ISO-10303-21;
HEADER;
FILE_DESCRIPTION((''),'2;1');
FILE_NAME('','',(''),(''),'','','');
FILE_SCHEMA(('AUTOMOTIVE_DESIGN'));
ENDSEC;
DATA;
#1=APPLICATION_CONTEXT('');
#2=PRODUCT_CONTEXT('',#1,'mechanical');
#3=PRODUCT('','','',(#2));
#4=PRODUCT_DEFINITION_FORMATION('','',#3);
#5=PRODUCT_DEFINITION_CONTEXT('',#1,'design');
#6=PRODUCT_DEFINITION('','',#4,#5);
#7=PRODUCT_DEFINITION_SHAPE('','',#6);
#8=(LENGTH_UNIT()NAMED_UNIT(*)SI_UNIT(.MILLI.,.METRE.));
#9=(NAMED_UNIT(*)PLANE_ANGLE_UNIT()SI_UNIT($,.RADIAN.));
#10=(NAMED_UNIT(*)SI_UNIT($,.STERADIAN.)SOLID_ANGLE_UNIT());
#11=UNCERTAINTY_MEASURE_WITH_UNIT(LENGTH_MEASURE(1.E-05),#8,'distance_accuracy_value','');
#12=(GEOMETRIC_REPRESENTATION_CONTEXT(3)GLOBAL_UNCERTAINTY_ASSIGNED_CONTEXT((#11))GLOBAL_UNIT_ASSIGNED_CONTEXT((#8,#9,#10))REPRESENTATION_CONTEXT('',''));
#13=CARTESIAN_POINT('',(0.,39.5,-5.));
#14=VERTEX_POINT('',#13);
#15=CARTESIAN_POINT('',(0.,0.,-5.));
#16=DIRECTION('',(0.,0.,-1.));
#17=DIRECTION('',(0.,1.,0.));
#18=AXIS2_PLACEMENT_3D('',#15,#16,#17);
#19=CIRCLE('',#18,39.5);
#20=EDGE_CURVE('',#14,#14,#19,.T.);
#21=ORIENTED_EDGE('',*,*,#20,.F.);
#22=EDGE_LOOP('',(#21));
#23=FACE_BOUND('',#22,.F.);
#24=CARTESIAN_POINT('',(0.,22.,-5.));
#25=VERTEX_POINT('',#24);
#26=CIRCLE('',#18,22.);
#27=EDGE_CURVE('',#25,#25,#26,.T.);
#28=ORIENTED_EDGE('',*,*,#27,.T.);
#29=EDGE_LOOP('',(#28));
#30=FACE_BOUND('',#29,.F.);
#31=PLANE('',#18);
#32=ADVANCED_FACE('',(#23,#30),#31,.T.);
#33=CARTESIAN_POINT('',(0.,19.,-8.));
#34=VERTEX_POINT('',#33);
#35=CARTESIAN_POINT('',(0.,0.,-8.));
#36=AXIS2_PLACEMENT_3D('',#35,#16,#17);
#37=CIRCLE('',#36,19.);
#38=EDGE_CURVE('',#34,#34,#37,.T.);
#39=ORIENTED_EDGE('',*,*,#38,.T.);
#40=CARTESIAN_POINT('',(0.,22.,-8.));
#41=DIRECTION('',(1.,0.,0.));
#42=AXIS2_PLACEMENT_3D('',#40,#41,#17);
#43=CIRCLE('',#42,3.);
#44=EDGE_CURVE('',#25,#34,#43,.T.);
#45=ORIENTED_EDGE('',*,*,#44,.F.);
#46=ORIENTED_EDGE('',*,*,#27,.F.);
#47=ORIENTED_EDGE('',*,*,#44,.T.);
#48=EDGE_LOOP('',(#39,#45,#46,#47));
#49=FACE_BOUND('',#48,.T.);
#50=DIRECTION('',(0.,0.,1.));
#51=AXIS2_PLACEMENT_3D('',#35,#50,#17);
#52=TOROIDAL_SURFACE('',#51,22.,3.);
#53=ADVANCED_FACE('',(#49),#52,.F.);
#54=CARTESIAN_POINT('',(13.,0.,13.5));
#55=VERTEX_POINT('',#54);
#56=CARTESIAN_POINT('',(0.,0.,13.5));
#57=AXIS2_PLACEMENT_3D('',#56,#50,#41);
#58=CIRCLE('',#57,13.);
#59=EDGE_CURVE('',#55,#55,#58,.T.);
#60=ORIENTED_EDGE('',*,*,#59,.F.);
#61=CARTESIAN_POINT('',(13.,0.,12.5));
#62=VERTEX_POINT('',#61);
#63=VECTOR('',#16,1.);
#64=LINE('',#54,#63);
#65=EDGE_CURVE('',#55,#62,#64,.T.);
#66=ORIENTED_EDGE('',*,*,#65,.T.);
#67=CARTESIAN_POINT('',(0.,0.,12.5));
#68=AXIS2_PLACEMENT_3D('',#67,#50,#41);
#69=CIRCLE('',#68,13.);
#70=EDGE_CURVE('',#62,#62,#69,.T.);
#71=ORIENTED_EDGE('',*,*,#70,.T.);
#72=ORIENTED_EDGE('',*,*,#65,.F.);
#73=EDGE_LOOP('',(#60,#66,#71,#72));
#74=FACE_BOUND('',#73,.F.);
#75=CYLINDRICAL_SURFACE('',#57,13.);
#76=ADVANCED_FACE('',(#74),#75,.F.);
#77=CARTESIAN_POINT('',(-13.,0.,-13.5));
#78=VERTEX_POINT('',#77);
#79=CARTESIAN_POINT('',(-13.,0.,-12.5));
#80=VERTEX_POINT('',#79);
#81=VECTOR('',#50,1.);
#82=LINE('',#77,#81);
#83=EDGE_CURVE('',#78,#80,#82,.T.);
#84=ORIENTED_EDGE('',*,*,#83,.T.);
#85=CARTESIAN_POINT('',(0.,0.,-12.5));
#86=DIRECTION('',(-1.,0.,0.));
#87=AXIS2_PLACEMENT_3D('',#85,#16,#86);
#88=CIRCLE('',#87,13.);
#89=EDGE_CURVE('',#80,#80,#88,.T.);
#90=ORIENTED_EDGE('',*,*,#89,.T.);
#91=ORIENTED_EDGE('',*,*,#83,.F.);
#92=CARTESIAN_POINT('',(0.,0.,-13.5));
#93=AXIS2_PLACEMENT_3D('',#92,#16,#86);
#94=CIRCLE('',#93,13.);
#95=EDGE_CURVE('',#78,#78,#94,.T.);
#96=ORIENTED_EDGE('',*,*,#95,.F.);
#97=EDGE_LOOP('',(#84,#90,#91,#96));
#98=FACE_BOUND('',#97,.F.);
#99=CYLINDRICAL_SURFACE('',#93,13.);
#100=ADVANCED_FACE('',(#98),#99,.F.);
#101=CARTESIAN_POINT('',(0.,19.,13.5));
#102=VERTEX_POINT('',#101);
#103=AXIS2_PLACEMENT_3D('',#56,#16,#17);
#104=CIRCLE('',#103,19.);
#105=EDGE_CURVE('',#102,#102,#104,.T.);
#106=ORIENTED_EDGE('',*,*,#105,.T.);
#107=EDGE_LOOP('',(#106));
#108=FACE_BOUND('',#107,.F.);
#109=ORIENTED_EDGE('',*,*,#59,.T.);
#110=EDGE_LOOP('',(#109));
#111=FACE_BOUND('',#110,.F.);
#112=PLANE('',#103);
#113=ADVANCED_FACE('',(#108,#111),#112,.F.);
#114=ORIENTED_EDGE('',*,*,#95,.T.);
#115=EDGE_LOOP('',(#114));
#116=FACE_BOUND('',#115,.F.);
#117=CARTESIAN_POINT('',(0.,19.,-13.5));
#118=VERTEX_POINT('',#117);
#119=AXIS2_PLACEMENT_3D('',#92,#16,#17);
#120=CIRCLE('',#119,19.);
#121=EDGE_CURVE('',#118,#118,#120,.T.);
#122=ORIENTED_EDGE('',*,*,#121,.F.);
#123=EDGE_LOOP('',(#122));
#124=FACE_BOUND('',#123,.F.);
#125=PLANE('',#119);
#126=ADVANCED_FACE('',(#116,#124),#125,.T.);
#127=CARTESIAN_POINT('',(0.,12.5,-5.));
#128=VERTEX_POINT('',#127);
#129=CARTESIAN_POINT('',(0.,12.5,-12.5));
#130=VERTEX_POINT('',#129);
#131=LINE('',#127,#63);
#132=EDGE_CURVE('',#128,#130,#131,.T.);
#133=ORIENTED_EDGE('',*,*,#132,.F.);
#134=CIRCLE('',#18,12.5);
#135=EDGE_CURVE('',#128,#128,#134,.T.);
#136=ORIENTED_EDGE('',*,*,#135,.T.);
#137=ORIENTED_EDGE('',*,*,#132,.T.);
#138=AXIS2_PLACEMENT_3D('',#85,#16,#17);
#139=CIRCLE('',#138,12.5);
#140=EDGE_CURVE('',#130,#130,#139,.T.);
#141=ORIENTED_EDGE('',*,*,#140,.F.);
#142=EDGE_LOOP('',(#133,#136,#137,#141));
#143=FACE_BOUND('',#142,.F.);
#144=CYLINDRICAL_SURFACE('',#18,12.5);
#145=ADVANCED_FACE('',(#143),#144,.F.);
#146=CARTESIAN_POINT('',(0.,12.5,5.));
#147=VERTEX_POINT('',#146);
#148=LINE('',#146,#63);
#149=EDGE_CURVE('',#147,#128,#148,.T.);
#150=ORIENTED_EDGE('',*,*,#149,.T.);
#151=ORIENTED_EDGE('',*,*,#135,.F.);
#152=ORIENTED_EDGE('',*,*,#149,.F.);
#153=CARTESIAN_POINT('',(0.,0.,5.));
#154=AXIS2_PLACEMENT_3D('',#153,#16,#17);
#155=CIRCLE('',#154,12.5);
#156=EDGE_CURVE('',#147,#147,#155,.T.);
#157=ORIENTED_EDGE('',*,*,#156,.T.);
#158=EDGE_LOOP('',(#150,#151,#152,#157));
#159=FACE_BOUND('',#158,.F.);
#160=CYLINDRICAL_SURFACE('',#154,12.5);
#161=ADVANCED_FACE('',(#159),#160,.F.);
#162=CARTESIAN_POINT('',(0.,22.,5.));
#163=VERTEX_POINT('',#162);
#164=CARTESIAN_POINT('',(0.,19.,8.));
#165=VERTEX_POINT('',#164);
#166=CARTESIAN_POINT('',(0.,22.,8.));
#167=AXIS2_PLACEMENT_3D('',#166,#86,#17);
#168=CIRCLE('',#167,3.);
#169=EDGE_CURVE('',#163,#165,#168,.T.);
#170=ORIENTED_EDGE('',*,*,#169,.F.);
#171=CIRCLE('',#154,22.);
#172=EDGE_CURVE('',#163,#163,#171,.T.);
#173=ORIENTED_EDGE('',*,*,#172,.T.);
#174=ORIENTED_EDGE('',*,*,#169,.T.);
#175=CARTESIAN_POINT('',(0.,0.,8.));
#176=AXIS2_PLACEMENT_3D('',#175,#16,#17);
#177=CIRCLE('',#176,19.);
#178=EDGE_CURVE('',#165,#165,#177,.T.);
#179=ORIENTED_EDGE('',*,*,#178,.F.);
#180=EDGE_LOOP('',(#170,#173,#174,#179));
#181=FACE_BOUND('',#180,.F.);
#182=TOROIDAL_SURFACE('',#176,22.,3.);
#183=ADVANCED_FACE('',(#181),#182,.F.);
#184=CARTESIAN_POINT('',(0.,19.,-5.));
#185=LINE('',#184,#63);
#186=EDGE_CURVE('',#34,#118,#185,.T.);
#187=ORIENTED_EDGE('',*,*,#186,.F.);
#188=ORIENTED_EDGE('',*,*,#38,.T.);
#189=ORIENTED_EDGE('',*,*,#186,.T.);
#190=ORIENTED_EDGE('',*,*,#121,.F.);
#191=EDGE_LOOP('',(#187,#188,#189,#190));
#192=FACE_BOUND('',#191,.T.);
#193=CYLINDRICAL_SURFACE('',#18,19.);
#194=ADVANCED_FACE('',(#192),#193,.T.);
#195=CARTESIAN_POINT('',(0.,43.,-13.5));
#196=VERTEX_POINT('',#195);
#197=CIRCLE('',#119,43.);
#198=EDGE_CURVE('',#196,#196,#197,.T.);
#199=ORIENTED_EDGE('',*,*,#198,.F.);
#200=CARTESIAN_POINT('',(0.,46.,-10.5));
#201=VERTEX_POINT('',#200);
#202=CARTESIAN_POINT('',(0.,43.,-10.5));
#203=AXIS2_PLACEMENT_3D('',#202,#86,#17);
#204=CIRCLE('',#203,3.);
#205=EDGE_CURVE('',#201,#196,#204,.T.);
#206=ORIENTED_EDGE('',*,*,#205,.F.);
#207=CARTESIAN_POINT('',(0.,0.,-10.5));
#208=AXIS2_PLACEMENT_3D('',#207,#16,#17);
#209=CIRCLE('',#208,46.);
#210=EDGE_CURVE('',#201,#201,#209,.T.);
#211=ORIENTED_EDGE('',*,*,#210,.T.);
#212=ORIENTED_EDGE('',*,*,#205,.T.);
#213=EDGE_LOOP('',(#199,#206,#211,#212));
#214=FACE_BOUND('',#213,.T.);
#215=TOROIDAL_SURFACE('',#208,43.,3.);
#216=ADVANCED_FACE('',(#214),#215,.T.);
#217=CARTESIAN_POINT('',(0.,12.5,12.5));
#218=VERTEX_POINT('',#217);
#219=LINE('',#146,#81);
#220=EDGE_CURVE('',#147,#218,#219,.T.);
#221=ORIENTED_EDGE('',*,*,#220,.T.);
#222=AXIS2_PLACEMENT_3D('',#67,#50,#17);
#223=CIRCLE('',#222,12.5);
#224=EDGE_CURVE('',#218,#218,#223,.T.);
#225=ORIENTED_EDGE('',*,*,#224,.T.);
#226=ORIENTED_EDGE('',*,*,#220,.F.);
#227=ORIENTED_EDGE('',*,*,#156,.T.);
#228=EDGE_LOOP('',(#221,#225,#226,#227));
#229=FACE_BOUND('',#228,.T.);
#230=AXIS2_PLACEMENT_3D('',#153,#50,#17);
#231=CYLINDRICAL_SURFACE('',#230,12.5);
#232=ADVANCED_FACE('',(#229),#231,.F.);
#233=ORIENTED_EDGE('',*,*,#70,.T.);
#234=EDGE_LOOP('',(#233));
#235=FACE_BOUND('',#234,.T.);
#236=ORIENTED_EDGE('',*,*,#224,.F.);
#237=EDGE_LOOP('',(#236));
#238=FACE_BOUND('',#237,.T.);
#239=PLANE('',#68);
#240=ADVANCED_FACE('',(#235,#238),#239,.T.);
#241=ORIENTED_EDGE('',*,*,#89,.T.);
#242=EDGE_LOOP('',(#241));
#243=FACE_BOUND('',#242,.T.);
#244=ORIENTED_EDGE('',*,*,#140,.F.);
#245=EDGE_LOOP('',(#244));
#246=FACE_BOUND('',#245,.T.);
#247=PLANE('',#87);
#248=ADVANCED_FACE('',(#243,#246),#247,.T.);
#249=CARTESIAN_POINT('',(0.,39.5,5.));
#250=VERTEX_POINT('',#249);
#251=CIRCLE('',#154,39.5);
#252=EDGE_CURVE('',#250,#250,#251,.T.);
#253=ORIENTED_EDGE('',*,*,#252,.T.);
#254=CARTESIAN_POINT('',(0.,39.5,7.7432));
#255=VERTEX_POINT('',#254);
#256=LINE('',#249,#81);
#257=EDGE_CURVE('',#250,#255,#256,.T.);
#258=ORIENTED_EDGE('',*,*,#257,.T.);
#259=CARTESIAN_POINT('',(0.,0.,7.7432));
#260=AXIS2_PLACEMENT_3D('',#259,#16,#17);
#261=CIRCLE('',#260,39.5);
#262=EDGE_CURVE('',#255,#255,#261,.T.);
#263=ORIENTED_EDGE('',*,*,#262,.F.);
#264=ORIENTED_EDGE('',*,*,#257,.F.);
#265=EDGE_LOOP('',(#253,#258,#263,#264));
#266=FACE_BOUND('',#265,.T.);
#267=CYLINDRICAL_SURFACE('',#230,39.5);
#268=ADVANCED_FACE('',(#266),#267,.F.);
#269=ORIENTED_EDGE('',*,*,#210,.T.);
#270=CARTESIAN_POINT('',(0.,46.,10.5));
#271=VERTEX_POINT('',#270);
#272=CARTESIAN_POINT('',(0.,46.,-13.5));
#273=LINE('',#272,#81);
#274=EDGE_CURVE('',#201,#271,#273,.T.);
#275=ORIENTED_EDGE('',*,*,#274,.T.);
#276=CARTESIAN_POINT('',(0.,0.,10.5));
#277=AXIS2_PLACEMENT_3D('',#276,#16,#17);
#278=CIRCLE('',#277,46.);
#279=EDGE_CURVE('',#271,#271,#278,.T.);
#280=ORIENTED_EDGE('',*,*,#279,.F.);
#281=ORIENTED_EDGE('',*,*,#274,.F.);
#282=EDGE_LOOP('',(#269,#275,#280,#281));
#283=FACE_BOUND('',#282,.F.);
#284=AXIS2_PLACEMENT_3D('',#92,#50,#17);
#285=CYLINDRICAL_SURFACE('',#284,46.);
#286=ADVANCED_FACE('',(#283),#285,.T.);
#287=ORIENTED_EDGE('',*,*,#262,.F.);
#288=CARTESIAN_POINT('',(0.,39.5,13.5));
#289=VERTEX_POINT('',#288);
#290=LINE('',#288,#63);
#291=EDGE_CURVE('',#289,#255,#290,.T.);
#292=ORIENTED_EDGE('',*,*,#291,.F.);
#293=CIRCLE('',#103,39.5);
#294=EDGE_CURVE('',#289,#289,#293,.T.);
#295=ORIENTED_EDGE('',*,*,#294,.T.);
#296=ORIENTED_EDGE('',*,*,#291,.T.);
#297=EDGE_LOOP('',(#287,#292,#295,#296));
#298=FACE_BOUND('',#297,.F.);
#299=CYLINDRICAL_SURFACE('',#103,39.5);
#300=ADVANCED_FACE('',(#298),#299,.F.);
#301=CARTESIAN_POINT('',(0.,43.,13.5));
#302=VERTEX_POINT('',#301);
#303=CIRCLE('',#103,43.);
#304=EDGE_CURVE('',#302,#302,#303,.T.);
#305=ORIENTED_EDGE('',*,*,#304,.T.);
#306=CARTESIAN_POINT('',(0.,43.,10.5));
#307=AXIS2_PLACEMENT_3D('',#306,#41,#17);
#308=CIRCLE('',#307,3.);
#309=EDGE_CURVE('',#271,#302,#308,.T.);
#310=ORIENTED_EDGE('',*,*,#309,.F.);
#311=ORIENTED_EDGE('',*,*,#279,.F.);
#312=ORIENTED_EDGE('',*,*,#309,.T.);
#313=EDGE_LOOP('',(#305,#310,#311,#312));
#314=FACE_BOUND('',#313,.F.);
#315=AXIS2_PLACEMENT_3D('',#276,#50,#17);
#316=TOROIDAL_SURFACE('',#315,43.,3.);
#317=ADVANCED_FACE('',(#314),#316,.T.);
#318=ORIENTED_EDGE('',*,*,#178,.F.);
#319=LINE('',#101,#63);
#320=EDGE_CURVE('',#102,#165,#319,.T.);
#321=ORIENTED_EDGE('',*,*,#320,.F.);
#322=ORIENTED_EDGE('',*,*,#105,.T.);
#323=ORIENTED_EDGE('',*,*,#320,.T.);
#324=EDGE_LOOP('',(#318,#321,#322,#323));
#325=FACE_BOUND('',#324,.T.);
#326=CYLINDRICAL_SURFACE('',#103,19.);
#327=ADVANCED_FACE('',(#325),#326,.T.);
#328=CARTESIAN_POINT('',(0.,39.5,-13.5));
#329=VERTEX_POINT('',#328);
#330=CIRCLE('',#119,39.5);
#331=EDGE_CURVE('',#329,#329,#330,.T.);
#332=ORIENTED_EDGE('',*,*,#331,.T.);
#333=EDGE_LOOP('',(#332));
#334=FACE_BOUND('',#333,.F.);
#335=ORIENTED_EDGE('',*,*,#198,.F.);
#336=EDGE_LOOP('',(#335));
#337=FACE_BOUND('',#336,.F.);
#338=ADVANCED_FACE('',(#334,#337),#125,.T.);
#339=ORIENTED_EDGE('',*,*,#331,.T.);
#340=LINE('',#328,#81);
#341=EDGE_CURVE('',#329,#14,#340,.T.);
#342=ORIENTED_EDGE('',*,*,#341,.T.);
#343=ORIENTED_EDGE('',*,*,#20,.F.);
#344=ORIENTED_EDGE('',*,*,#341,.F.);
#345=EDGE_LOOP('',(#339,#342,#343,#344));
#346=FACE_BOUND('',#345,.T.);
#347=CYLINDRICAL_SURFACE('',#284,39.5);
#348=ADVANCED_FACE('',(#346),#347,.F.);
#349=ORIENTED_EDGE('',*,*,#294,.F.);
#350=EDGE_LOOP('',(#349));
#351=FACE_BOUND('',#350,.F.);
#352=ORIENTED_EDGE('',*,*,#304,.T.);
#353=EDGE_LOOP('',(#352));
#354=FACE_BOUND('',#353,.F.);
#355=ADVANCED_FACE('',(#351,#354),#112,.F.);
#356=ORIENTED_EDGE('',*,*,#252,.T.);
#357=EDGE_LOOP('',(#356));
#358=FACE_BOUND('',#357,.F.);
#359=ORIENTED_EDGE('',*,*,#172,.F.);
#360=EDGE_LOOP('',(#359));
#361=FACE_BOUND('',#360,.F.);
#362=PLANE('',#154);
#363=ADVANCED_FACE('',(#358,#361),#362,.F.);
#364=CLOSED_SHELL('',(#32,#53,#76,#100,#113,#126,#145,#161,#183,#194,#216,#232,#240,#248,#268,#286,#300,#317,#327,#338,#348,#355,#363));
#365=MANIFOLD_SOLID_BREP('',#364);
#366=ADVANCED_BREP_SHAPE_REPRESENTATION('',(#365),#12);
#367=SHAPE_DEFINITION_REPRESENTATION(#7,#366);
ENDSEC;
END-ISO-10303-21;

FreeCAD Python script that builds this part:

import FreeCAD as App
import Part
import Sketcher


def edges_at(feature, points):
    """Names of the edges that pass closest to the given points."""
    edges = feature.Shape.Edges
    near = lambda p: min(range(len(edges)), key=lambda i: edges[i].distToShape(Part.Vertex(*p))[0])
    return sorted({f"Edge{near(p) + 1}" for p in points})


def add_polygon(sketch, points):
    """Adds a closed chain of lines whose ends are joined by coincident constraints."""
    first, n = sketch.GeometryCount, len(points)
    for a, b in zip(points, points[1:] + points[:1]):
        sketch.addGeometry(Part.LineSegment(App.Vector(*a, 0), App.Vector(*b, 0)), False)
    for i in range(n):
        sketch.addConstraint(Sketcher.Constraint("Coincident", first + i, 2, first + (i + 1) % n, 1))

doc = App.newDocument("Part")
params = doc.addObject("Spreadsheet::Sheet", "Params")
for row, (alias, value) in enumerate([
    ("sketch1_height", "27 mm"),
    ("revolution_angle", "360 deg"),
    ("sketch2_diameter", "26 mm"),
    ("pocket1_length", "1 mm"),
    ("sketch3_diameter", "26 mm"),
    ("pocket2_length", "1 mm"),
    ("fillet_radius", "3 mm"),
], start=1):
    params.set(f"A{row}", alias)
    params.set(f"B{row}", "=" + value)
    params.setAlias(f"B{row}", alias)

body = doc.addObject("PartDesign::Body", "Body")

# Sketch on YZ plane
sketch1 = body.newObject("Sketcher::SketchObject", "Sketch")
sketch1.AttachmentSupport = (doc.getObject("YZ_Plane"), [""])
sketch1.MapMode = "FlatFace"
add_polygon(sketch1, [(46, -13.5), (46, 13.5), (39.5, 13.5), (39.5, 5), (19, 5), (19, 13.5), (12.5, 13.5), (12.5, -13.5), (19, -13.5), (19, -5), (39.5, -5), (39.5, -13.5)])  # lines 0-11
sketch1.addConstraint(Sketcher.Constraint("Vertical", 0))
sketch1.addConstraint(Sketcher.Constraint("Horizontal", 1))
sketch1.addConstraint(Sketcher.Constraint("Vertical", 2))
sketch1.addConstraint(Sketcher.Constraint("Horizontal", 3))
sketch1.addConstraint(Sketcher.Constraint("Vertical", 4))
sketch1.addConstraint(Sketcher.Constraint("Horizontal", 5))
sketch1.addConstraint(Sketcher.Constraint("Vertical", 6))
sketch1.addConstraint(Sketcher.Constraint("Horizontal", 7))
sketch1.addConstraint(Sketcher.Constraint("Vertical", 8))
sketch1.addConstraint(Sketcher.Constraint("Horizontal", 9))
sketch1.addConstraint(Sketcher.Constraint("Vertical", 10))
sketch1.addConstraint(Sketcher.Constraint("Horizontal", 11))
sketch1.addConstraint(Sketcher.Constraint("Symmetric", 4, 2, 7, 2, -1))
sketch1.addConstraint(Sketcher.Constraint("Symmetric", 2, 2, 9, 2, -1))
sketch1.addConstraint(Sketcher.Constraint("Horizontal", 1, 2, 4, 2))
sketch1.addConstraint(Sketcher.Constraint("Horizontal", 7, 2, 10, 2))
sketch1.addConstraint(Sketcher.Constraint("Equal", 1, 5))
sketch1.addConstraint(Sketcher.Constraint("DistanceY", 0, 1, 0, 2, 27.0))
sketch1.addConstraint(Sketcher.Constraint("DistanceX", -1, 1, 0, 2, 46.0))
sketch1.addConstraint(Sketcher.Constraint("DistanceY", -1, 1, 2, 2, 5.0))
sketch1.addConstraint(Sketcher.Constraint("DistanceX", 3, 2, 0, 2, 27.0))
sketch1.addConstraint(Sketcher.Constraint("DistanceX", -1, 1, 1, 2, 39.5))
sketch1.setExpression("Constraints[29]", "Params.sketch1_height")
revolution = body.newObject("PartDesign::Revolution", "Revolution")
revolution.Profile = sketch1
revolution.ReferenceAxis = (sketch1, ["V_Axis"])
revolution.setExpression("Angle", "Params.revolution_angle")

# Sketch on XY plane
sketch2 = body.newObject("Sketcher::SketchObject", "Sketch001")
sketch2.AttachmentSupport = (doc.getObject("XY_Plane"), [""])
sketch2.MapMode = "FlatFace"
sketch2.AttachmentOffset = App.Placement(App.Vector(0, 0, 13.5), App.Rotation())
sketch2.addGeometry(Part.Circle(App.Vector(0, 0, 0), App.Vector(0, 0, 1), 13), False)
sketch2.addConstraint(Sketcher.Constraint("Coincident", 0, 3, -1, 1))
sketch2.addConstraint(Sketcher.Constraint("Diameter", 0, 26.0))
sketch2.setExpression("Constraints[1]", "Params.sketch2_diameter")
pocket1 = body.newObject("PartDesign::Pocket", "Pocket")
pocket1.Profile = sketch2
pocket1.setExpression("Length", "Params.pocket1_length")

# Sketch on XY plane
sketch3 = body.newObject("Sketcher::SketchObject", "Sketch002")
sketch3.AttachmentSupport = (doc.getObject("XY_Plane"), [""])
sketch3.MapMode = "FlatFace"
sketch3.AttachmentOffset = App.Placement(App.Vector(0, 0, -13.5), App.Rotation())
sketch3.addGeometry(Part.Circle(App.Vector(0, 0, 0), App.Vector(0, 0, 1), 13), False)
sketch3.addConstraint(Sketcher.Constraint("Coincident", 0, 3, -1, 1))
sketch3.addConstraint(Sketcher.Constraint("Diameter", 0, 26.0))
sketch3.setExpression("Constraints[1]", "Params.sketch3_diameter")
pocket2 = body.newObject("PartDesign::Pocket", "Pocket001")
pocket2.Profile = sketch3
pocket2.setExpression("Length", "Params.pocket2_length")
pocket2.Reversed = True
doc.recompute()

fillet = body.newObject("PartDesign::Fillet", "Fillet")
fillet.Base = (pocket2, edges_at(pocket2, [
    (0, -46, 13.5),
    (0, -46, -13.5),
    (0, -19, 5),
    (0, -19, -5),
]))
fillet.setExpression("Radius", "Params.fillet_radius")

doc.recompute()
